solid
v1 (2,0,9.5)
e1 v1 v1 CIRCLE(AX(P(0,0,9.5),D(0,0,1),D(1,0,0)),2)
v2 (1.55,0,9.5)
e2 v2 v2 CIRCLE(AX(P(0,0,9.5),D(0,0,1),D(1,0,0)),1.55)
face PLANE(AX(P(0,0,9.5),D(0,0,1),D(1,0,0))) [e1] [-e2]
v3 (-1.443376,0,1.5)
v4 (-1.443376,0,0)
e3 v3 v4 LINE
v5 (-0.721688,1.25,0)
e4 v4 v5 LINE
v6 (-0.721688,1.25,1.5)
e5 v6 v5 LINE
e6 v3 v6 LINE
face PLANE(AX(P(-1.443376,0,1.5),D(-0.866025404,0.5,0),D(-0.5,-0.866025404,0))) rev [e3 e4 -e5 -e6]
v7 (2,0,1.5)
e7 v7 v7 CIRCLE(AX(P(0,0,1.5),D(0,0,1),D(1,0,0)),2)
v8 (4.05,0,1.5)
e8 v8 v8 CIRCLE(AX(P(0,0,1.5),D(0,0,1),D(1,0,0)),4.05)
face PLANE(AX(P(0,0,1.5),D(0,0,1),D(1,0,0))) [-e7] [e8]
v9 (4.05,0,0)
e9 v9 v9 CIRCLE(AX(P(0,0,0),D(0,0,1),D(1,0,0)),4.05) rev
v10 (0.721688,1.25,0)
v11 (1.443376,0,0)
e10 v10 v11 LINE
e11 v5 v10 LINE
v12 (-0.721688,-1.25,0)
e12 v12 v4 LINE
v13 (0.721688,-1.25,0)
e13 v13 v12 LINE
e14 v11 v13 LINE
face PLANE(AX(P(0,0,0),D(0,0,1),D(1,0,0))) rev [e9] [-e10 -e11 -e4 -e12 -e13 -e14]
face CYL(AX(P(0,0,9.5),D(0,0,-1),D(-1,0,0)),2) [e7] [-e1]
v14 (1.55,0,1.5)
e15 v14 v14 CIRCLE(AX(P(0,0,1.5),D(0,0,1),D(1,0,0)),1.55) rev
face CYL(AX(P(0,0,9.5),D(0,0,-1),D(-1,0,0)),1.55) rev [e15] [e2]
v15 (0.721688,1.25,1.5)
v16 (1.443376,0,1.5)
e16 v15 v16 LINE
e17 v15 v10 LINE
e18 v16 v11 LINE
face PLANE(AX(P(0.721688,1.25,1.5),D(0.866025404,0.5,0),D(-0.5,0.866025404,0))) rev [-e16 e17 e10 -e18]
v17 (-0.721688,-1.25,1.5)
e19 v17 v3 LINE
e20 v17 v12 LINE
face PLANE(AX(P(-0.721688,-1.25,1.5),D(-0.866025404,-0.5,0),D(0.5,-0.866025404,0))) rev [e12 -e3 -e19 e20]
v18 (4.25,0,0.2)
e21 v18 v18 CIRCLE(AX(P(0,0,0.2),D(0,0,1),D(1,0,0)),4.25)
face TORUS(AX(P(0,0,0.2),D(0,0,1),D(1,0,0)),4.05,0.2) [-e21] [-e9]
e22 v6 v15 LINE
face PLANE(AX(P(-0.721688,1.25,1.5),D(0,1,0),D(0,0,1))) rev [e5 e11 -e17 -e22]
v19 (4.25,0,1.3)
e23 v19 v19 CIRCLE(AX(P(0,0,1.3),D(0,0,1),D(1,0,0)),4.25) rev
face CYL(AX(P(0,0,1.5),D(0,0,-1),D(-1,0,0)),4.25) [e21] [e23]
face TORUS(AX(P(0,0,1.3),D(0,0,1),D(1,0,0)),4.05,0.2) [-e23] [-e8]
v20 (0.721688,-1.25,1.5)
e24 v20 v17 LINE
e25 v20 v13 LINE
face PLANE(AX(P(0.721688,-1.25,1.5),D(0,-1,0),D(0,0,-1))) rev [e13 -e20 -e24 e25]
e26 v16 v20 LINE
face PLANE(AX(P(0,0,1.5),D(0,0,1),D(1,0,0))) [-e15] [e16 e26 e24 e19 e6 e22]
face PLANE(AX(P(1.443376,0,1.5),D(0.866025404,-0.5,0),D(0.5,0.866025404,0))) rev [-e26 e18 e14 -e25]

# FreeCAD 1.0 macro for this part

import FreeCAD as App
import Part
import Sketcher
Q = App.Units.Quantity


def edges_at(feature, points):
    """Names of the edges that pass closest to the given points."""
    edges = feature.Shape.Edges
    near = lambda p: min(range(len(edges)), key=lambda i: edges[i].distToShape(Part.Vertex(*p))[0])
    return sorted({f"Edge{near(p) + 1}" for p in points})

doc = App.newDocument("Part")
body = doc.addObject("PartDesign::Body", "Body")

# Sketch on XY plane
sketch1 = body.newObject("Sketcher::SketchObject", "Sketch")
sketch1.AttachmentSupport = (doc.getObject("XY_Plane"), [""])
sketch1.MapMode = "FlatFace"
sketch1.addGeometry(Part.Circle(App.Vector(0, 0, 0), App.Vector(0, 0, 1), 4.2), False)
sketch1.addConstraint(Sketcher.Constraint("Coincident", 0, 3, -1, 1))
sketch1.addConstraint(Sketcher.Constraint("Diameter", 0, Q("8.5 mm")))
pad1 = body.newObject("PartDesign::Pad", "Pad")
pad1.Profile = sketch1
pad1.Length = 1.5

# Sketch on XY plane
sketch2 = body.newObject("Sketcher::SketchObject", "Sketch001")
sketch2.AttachmentSupport = (doc.getObject("XY_Plane"), [""])
sketch2.MapMode = "FlatFace"
sketch2.AttachmentOffset = App.Placement(App.Vector(0, 0, 1.5), App.Rotation())
sketch2.addGeometry(Part.Circle(App.Vector(0, 0, 0), App.Vector(0, 0, 1), 2), False)
sketch2.addGeometry(Part.Circle(App.Vector(0, 0, 0), App.Vector(0, 0, 1), 1.6), False)
sketch2.addConstraint(Sketcher.Constraint("Coincident", 0, 3, -1, 1))
sketch2.addConstraint(Sketcher.Constraint("Coincident", 1, 3, -1, 1))
sketch2.addConstraint(Sketcher.Constraint("Diameter", 0, Q("4 mm")))
sketch2.addConstraint(Sketcher.Constraint("Diameter", 1, Q("3.1 mm")))
pad2 = body.newObject("PartDesign::Pad", "Pad001")
pad2.Profile = sketch2
pad2.Length = 8
doc.recompute()

fillet = body.newObject("PartDesign::Fillet", "Fillet")
fillet.Base = (pad2, edges_at(pad2, [(-4.25, 0, 0), (-4.25, 0, 1.5)]))
fillet.Radius = 0.2

# Sketch on XY plane
sketch3 = body.newObject("Sketcher::SketchObject", "Sketch002")
sketch3.AttachmentSupport = (doc.getObject("XY_Plane"), [""])
sketch3.MapMode = "FlatFace"
sketch3.addGeometry(Part.LineSegment(App.Vector(-1.4, 0, 0), App.Vector(-0.7, 1.2, 0)), False)
sketch3.addGeometry(Part.LineSegment(App.Vector(-0.7, 1.2, 0), App.Vector(0.7, 1.2, 0)), False)
sketch3.addGeometry(Part.LineSegment(App.Vector(0.7, 1.2, 0), App.Vector(1.4, 0, 0)), False)
sketch3.addGeometry(Part.LineSegment(App.Vector(1.4, 0, 0), App.Vector(0.7, -1.2, 0)), False)
sketch3.addGeometry(Part.LineSegment(App.Vector(0.7, -1.2, 0), App.Vector(-0.7, -1.2, 0)), False)
sketch3.addGeometry(Part.LineSegment(App.Vector(-0.7, -1.2, 0), App.Vector(-1.4, 0, 0)), False)
sketch3.addConstraint(Sketcher.Constraint("Coincident", 0, 2, 1, 1))
sketch3.addConstraint(Sketcher.Constraint("Coincident", 1, 2, 2, 1))
sketch3.addConstraint(Sketcher.Constraint("Coincident", 2, 2, 3, 1))
sketch3.addConstraint(Sketcher.Constraint("Coincident", 3, 2, 4, 1))
sketch3.addConstraint(Sketcher.Constraint("Coincident", 4, 2, 5, 1))
sketch3.addConstraint(Sketcher.Constraint("Coincident", 5, 2, 0, 1))
sketch3.addConstraint(Sketcher.Constraint("Horizontal", 1))
sketch3.addConstraint(Sketcher.Constraint("Horizontal", 4))
sketch3.addConstraint(Sketcher.Constraint("Symmetric", 0, 2, 3, 2, -1, 1))
sketch3.addConstraint(Sketcher.Constraint("Symmetric", 2, 2, 5, 2, -1, 1))
sketch3.addConstraint(Sketcher.Constraint("PointOnObject", 2, 2, -1))
sketch3.addConstraint(Sketcher.Constraint("Parallel", 2, 5))
sketch3.addConstraint(Sketcher.Constraint("Vertical", 1, 2, 3, 2))
sketch3.addConstraint(Sketcher.Constraint("Angle", 0, Q("60 deg")))
sketch3.addConstraint(Sketcher.Constraint("DistanceY", 3, 2, 1, 2, Q("2.5 mm")))
sketch3.addConstraint(Sketcher.Constraint("DistanceX", 1, 1, 1, 2, Q("1.443376 mm")))
pocket1 = body.newObject("PartDesign::Pocket", "Pocket")
pocket1.Profile = sketch3
pocket1.Length = 1.5
pocket1.Reversed = True

doc.recompute()
